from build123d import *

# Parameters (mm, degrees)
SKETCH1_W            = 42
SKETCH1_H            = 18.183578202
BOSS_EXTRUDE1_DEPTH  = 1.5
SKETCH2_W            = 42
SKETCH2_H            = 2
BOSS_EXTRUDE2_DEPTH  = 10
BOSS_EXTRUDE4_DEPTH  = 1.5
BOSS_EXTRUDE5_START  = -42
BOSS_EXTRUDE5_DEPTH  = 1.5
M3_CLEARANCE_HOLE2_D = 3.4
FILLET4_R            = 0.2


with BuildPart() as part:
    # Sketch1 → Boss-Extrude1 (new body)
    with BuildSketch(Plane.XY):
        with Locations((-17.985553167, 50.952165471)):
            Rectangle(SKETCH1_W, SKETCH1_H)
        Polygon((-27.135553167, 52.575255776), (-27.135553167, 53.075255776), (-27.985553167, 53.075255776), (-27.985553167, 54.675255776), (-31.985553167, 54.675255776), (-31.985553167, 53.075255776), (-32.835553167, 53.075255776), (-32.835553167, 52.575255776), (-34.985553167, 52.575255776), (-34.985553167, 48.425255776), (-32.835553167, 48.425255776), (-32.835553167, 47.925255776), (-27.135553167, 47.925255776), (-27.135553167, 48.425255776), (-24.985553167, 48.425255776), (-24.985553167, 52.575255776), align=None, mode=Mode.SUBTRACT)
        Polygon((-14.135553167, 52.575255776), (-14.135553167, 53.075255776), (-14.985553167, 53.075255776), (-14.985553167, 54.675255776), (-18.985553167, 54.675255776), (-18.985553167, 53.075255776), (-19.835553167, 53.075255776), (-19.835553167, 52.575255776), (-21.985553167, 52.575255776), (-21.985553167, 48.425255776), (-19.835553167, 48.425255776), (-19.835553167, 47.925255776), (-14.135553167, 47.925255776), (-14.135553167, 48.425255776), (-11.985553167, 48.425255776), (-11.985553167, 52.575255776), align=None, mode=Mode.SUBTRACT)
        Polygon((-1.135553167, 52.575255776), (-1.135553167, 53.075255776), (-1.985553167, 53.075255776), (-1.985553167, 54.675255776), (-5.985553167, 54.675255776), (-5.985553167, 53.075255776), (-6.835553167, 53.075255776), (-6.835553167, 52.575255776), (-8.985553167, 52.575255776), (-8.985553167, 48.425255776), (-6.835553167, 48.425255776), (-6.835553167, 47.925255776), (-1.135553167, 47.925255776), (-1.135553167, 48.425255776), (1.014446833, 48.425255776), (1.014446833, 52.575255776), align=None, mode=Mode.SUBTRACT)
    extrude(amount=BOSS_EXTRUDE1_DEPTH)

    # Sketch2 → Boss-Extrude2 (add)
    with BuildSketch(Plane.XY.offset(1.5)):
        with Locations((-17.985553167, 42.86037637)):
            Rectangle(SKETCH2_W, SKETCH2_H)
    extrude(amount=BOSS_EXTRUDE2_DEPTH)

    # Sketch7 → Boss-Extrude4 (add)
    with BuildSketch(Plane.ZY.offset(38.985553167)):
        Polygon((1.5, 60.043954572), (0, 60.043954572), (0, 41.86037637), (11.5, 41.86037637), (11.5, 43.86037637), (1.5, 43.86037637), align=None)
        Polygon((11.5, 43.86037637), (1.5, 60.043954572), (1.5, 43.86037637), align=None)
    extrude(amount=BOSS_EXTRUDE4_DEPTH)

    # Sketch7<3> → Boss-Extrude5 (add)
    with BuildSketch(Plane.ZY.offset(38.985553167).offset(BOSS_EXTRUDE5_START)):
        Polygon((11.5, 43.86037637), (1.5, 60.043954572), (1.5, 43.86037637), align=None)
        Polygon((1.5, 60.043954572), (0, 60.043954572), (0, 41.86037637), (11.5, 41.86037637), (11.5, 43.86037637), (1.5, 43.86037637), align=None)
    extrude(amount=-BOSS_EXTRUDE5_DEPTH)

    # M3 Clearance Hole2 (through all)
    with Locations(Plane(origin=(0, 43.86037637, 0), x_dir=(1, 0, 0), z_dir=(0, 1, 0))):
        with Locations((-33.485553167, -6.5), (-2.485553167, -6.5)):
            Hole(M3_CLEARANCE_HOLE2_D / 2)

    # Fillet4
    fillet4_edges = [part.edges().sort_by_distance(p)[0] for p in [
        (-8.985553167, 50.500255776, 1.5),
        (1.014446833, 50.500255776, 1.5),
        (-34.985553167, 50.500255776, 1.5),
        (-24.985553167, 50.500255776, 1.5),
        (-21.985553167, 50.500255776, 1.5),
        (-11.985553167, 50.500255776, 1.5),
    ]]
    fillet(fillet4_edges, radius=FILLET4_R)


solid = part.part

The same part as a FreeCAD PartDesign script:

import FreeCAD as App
import Part
import Sketcher
from FreeCAD import Vector
Q = App.Units.Quantity


def edges_at(feature, points):
    """Names of the edges that pass closest to the given points."""
    edges = feature.Shape.Edges
    near = lambda p: min(range(len(edges)), key=lambda i: edges[i].distToShape(Part.Vertex(*p))[0])
    return sorted({f"Edge{near(p) + 1}" for p in points})


def add_polygon(sketch, points):
    """Adds a closed chain of lines whose ends are joined by coincident constraints."""
    first, n = sketch.GeometryCount, len(points)
    for a, b in zip(points, points[1:] + points[:1]):
        sketch.addGeometry(Part.LineSegment(App.Vector(*a, 0), App.Vector(*b, 0)), False)
    for i in range(n):
        sketch.addConstraint(Sketcher.Constraint("Coincident", first + i, 2, first + (i + 1) % n, 1))

doc = App.newDocument("Part")
body = doc.addObject("PartDesign::Body", "Body")

sketch1 = body.newObject("Sketcher::SketchObject", "Sketch")
sketch1.AttachmentSupport = (doc.getObject("XY_Plane"), [""])
sketch1.MapMode = "FlatFace"
add_polygon(sketch1, [(-39, 60), (-39, 41.9), (3, 41.9), (3, 60)])
add_polygon(sketch1, [(-27.1, 53.1), (-27.1, 52.6), (-25, 52.6), (-25, 48.4), (-27.1, 48.4), (-27.1, 47.9), (-32.8, 47.9), (-32.8, 48.4), (-35, 48.4), (-35, 52.6), (-32.8, 52.6), (-32.8, 53.1), (-32, 53.1), (-32, 54.7), (-28, 54.7), (-28, 53.1)])
add_polygon(sketch1, [(-14.1, 53.1), (-14.1, 52.6), (-12, 52.6), (-12, 48.4), (-14.1, 48.4), (-14.1, 47.9), (-19.8, 47.9), (-19.8, 48.4), (-22, 48.4), (-22, 52.6), (-19.8, 52.6), (-19.8, 53.1), (-19, 53.1), (-19, 54.7), (-15, 54.7), (-15, 53.1)])
add_polygon(sketch1, [(-1.1, 53.1), (-1.1, 52.6), (1, 52.6), (1, 48.4), (-1.1, 48.4), (-1.1, 47.9), (-6.8, 47.9), (-6.8, 48.4), (-9, 48.4), (-9, 52.6), (-6.8, 52.6), (-6.8, 53.1), (-6, 53.1), (-6, 54.7), (-2, 54.7), (-2, 53.1)])
sketch1.addConstraint([
    Sketcher.Constraint("Vertical", 0),
    Sketcher.Constraint("Horizontal", 1),
    Sketcher.Constraint("Vertical", 2),
    Sketcher.Constraint("Horizontal", 3),
    Sketcher.Constraint("Vertical", 4),
    Sketcher.Constraint("Horizontal", 5),
    Sketcher.Constraint("Vertical", 6),
    Sketcher.Constraint("Horizontal", 7),
    Sketcher.Constraint("Vertical", 8),
    Sketcher.Constraint("Horizontal", 9),
    Sketcher.Constraint("Vertical", 10),
    Sketcher.Constraint("Horizontal", 11),
    Sketcher.Constraint("Vertical", 12),
    Sketcher.Constraint("Horizontal", 13),
    Sketcher.Constraint("Vertical", 14),
    Sketcher.Constraint("Horizontal", 15),
    Sketcher.Constraint("Vertical", 16),
    Sketcher.Constraint("Horizontal", 17),
    Sketcher.Constraint("Vertical", 18),
    Sketcher.Constraint("Horizontal", 19),
    Sketcher.Constraint("Vertical", 20),
    Sketcher.Constraint("Horizontal", 21),
    Sketcher.Constraint("Vertical", 22),
    Sketcher.Constraint("Horizontal", 23),
    Sketcher.Constraint("Vertical", 24),
    Sketcher.Constraint("Horizontal", 25),
    Sketcher.Constraint("Vertical", 26),
    Sketcher.Constraint("Horizontal", 27),
    Sketcher.Constraint("Vertical", 28),
    Sketcher.Constraint("Horizontal", 29),
    Sketcher.Constraint("Vertical", 30),
    Sketcher.Constraint("Horizontal", 31),
    Sketcher.Constraint("Vertical", 32),
    Sketcher.Constraint("Horizontal", 33),
    Sketcher.Constraint("Vertical", 34),
    Sketcher.Constraint("Horizontal", 35),
    Sketcher.Constraint("Vertical", 36),
    Sketcher.Constraint("Horizontal", 37),
    Sketcher.Constraint("Vertical", 38),
    Sketcher.Constraint("Horizontal", 39),
    Sketcher.Constraint("Vertical", 40),
    Sketcher.Constraint("Horizontal", 41),
    Sketcher.Constraint("Vertical", 42),
    Sketcher.Constraint("Horizontal", 43),
    Sketcher.Constraint("Vertical", 44),
    Sketcher.Constraint("Horizontal", 45),
    Sketcher.Constraint("Vertical", 46),
    Sketcher.Constraint("Horizontal", 47),
    Sketcher.Constraint("Vertical", 48),
    Sketcher.Constraint("Horizontal", 49),
    Sketcher.Constraint("Vertical", 50),
    Sketcher.Constraint("Horizontal", 51),
    Sketcher.Constraint("Horizontal", 7, 2, 10, 2),
    Sketcher.Constraint("Horizontal", 5, 2, 12, 2),
    Sketcher.Constraint("Horizontal", 15, 2, 18, 2),
    Sketcher.Constraint("Horizontal", 13, 2, 20, 2),
    Sketcher.Constraint("Horizontal", 11, 2, 22, 2),
    Sketcher.Constraint("Horizontal", 9, 2, 24, 2),
    Sketcher.Constraint("Horizontal", 23, 2, 26, 2),
    Sketcher.Constraint("Horizontal", 21, 2, 28, 2),
    Sketcher.Constraint("Horizontal", 19, 2, 30, 2),
    Sketcher.Constraint("Horizontal", 17, 2, 32, 2),
    Sketcher.Constraint("Horizontal", 31, 2, 34, 2),
    Sketcher.Constraint("Horizontal", 29, 2, 36, 2),
    Sketcher.Constraint("Horizontal", 27, 2, 38, 2),
    Sketcher.Constraint("Horizontal", 25, 2, 40, 2),
    Sketcher.Constraint("Horizontal", 39, 2, 42, 2),
    Sketcher.Constraint("Horizontal", 37, 2, 44, 2),
    Sketcher.Constraint("Horizontal", 35, 2, 46, 2),
    Sketcher.Constraint("Horizontal", 33, 2, 48, 2),
    Sketcher.Constraint("Horizontal", 47, 2, 50, 2),
    Sketcher.Constraint("Vertical", 4, 2, 7, 2),
    Sketcher.Constraint("Vertical", 10, 2, 13, 2),
    Sketcher.Constraint("Vertical", 20, 2, 23, 2),
    Sketcher.Constraint("Vertical", 26, 2, 29, 2),
    Sketcher.Constraint("Vertical", 36, 2, 39, 2),
    Sketcher.Constraint("Vertical", 42, 2, 45, 2),
    Sketcher.Constraint("Equal", 7, 11),
    Sketcher.Constraint("Equal", 15, 19),
    Sketcher.Constraint("Equal", 13, 21),
    Sketcher.Constraint("Equal", 9, 25),
    Sketcher.Constraint("Equal", 23, 27),
    Sketcher.Constraint("Equal", 19, 31),
    Sketcher.Constraint("Equal", 17, 33),
    Sketcher.Constraint("Equal", 29, 37),
    Sketcher.Constraint("Equal", 25, 41),
    Sketcher.Constraint("Equal", 39, 43),
    Sketcher.Constraint("Equal", 35, 47),
    Sketcher.Constraint("Equal", 33, 49),
    Sketcher.Constraint("Equal", 4, 8),
    Sketcher.Constraint("DistanceX", 1, 1, 1, 2, Q("42 mm")),
    Sketcher.Constraint("DistanceX", 17, 1, 17, 2, Q("4 mm")),
    Sketcher.Constraint("DistanceX", 9, 2, 9, 1, Q("5.7 mm")),
    Sketcher.Constraint("DistanceY", 4, 2, 4, 1, Q("0.5 mm")),
    Sketcher.Constraint("DistanceY", 16, 1, 16, 2, Q("1.6 mm")),
    Sketcher.Constraint("DistanceX", 3, 2, 5, 2, Q("14 mm")),
    Sketcher.Constraint("DistanceX", 0, 2, 11, 2, Q("4 mm")),
    Sketcher.Constraint("DistanceX", 4, 2, 20, 2, Q("13 mm")),
    Sketcher.Constraint("DistanceX", 20, 2, 36, 2, Q("13 mm")),
    Sketcher.Constraint("DistanceY", 6, 2, 6, 1, Q("4.15 mm")),
    Sketcher.Constraint("DistanceY", 0, 2, 0, 1, Q("18.183578 mm")),
    Sketcher.Constraint("DistanceY", 4, 2, 3, 2, Q("7.468699 mm")),
    Sketcher.Constraint("DistanceX", 0, 2, -1, 1, Q("38.985553 mm")),
    Sketcher.Constraint("DistanceY", -1, 1, 0, 2, Q("41.860376 mm")),
])
pad1 = body.newObject("PartDesign::Pad", "Pad")
pad1.Profile = sketch1
pad1.Length = 1.5

sketch2 = body.newObject("Sketcher::SketchObject", "Sketch001")
sketch2.AttachmentSupport = (doc.getObject("XY_Plane"), [""])
sketch2.MapMode = "FlatFace"
sketch2.AttachmentOffset = App.Placement(Vector(0, 0, 1.5), App.Rotation())
add_polygon(sketch2, [(-39, 43.9), (-39, 41.9), (3, 41.9), (3, 43.9)])
sketch2.addConstraint([
    Sketcher.Constraint("Vertical", 0),
    Sketcher.Constraint("Horizontal", 1),
    Sketcher.Constraint("Vertical", 2),
    Sketcher.Constraint("Horizontal", 3),
    Sketcher.Constraint("DistanceX", 1, 1, 1, 2, Q("42 mm")),
    Sketcher.Constraint("DistanceY", 0, 2, 0, 1, Q("2 mm")),
    Sketcher.Constraint("DistanceX", 0, 2, -1, 1, Q("38.985553 mm")),
    Sketcher.Constraint("DistanceY", -1, 1, 0, 2, Q("41.860376 mm")),
])
pad2 = body.newObject("PartDesign::Pad", "Pad001")
pad2.Profile = sketch2
pad2.Length = 10

sketch3 = body.newObject("Sketcher::SketchObject", "Sketch002")
sketch3.AttachmentSupport = (doc.getObject("YZ_Plane"), [""])
sketch3.MapMode = "FlatFace"
sketch3.AttachmentOffset = App.Placement(Vector(0, 0, -38.985553), App.Rotation())
add_polygon(sketch3, [(60, 1.5), (60, 0), (41.9, 0), (41.9, 11.5), (43.9, 11.5)])
sketch3.addConstraint([
    Sketcher.Constraint("Vertical", 0),
    Sketcher.Constraint("Horizontal", 1),
    Sketcher.Constraint("Vertical", 2),
    Sketcher.Constraint("Horizontal", 3),
    Sketcher.Constraint("PointOnObject", 0, 2, -1),
    Sketcher.Constraint("DistanceX", 3, 1, 3, 2, Q("2 mm")),
    Sketcher.Constraint("DistanceY", 0, 2, 0, 1, Q("1.5 mm")),
    Sketcher.Constraint("DistanceY", 2, 1, 2, 2, Q("11.5 mm")),
    Sketcher.Constraint("DistanceX", 1, 2, 1, 1, Q("18.183578 mm")),
    Sketcher.Constraint("DistanceX", -1, 1, 0, 2, Q("60.043955 mm")),
])
pad3 = body.newObject("PartDesign::Pad", "Pad002")
pad3.Profile = sketch3
pad3.Length = 1.5
pad3.Reversed = True

sketch4 = body.newObject("Sketcher::SketchObject", "Sketch003")
sketch4.AttachmentSupport = (doc.getObject("YZ_Plane"), [""])
sketch4.MapMode = "FlatFace"
sketch4.AttachmentOffset = App.Placement(Vector(0, 0, 3.014447), App.Rotation())
add_polygon(sketch4, [(43.9, 11.5), (60, 1.5), (60, 0), (41.9, 0), (41.9, 11.5)])
sketch4.addConstraint([
    Sketcher.Constraint("Vertical", 1),
    Sketcher.Constraint("Horizontal", 2),
    Sketcher.Constraint("Vertical", 3),
    Sketcher.Constraint("Horizontal", 4),
    Sketcher.Constraint("PointOnObject", 1, 2, -1),
    Sketcher.Constraint("DistanceX", 4, 1, 4, 2, Q("2 mm")),
    Sketcher.Constraint("DistanceY", 1, 2, 1, 1, Q("1.5 mm")),
    Sketcher.Constraint("DistanceY", 3, 1, 3, 2, Q("11.5 mm")),
    Sketcher.Constraint("DistanceX", 2, 2, 2, 1, Q("18.183578 mm")),
    Sketcher.Constraint("DistanceX", -1, 1, 0, 2, Q("60.043955 mm")),
])
pad4 = body.newObject("PartDesign::Pad", "Pad003")
pad4.Profile = sketch4
pad4.Length = 1.5

sketch5 = body.newObject("Sketcher::SketchObject", "Sketch004")
sketch5.AttachmentSupport = (doc.getObject("XZ_Plane"), [""])
sketch5.MapMode = "FlatFace"
sketch5.AttachmentOffset = App.Placement(Vector(0, 0, -43.860376), App.Rotation())
sketch5.addGeometry([
    Part.Circle(Vector(-33.5, 6.5, 0), Vector(0, 0, 1), 1.7),
    Part.Circle(Vector(-2.5, 6.5, 0), Vector(0, 0, 1), 1.7),
], False)
sketch5.addConstraint([
    Sketcher.Constraint("Equal", 0, 1),
    Sketcher.Constraint("Horizontal", 0, 3, 1, 3),
    Sketcher.Constraint("Diameter", 0, Q("3.4 mm")),
    Sketcher.Constraint("DistanceX", 0, 3, 1, 3, Q("31 mm")),
    Sketcher.Constraint("DistanceY", -1, 1, 0, 3, Q("6.5 mm")),
    Sketcher.Constraint("DistanceX", 0, 3, -1, 1, Q("33.485553 mm")),
])
doc.recompute()
hole = body.newObject("PartDesign::Hole", "Hole")
hole.Profile = sketch5
hole.ThreadType = "None"
hole.Diameter = 3.4
hole.DepthType = "ThroughAll"
hole.Reversed = True
doc.recompute()

fillet = body.newObject("PartDesign::Fillet", "Fillet")
fillet.Base = (hole, edges_at(hole, [
    (-8.986, 50.5, 1.5),
    (1.014, 50.5, 1.5),
    (-34.986, 50.5, 1.5),
    (-24.986, 50.5, 1.5),
    (-21.986, 50.5, 1.5),
    (-11.986, 50.5, 1.5),
]))
fillet.Radius = 0.2

doc.recompute()
